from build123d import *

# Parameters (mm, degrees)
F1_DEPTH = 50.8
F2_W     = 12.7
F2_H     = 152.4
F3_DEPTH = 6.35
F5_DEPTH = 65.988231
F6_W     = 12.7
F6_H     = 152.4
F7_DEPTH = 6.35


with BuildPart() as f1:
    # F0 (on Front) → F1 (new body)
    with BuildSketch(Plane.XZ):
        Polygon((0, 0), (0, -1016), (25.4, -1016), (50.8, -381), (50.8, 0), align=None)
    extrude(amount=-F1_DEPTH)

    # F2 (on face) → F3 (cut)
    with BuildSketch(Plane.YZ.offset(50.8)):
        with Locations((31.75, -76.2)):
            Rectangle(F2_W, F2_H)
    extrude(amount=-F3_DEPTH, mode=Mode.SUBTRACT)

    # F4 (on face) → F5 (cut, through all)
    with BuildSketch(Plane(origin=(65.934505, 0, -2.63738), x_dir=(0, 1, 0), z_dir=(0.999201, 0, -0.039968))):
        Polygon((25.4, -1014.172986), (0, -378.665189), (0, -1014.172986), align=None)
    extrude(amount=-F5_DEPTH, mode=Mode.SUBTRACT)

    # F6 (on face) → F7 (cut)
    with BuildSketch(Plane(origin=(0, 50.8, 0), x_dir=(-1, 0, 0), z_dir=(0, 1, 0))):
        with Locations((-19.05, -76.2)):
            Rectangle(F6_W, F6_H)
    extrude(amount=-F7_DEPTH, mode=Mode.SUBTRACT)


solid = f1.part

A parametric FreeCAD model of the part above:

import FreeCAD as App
import Part
import Sketcher
Q = App.Units.Quantity

doc = App.newDocument("Part")
body = doc.addObject("PartDesign::Body", "Body")

# Sketch on XZ plane
sketch1 = doc.addObject("Sketcher::SketchObject", "Sketch")
body.addObject(sketch1)
sketch1.AttachmentSupport = (doc.XZ_Plane, [""])
sketch1.MapMode = "FlatFace"
sketch1.addGeometry([
    Part.LineSegment(App.Vector(0, 0, 0), App.Vector(0, -1016, 0)),  # 0
    Part.LineSegment(App.Vector(0, -1016, 0), App.Vector(25, -1016, 0)),  # 1
    Part.LineSegment(App.Vector(25, -1016, 0), App.Vector(51, -381, 0)),  # 2
    Part.LineSegment(App.Vector(51, -381, 0), App.Vector(51, 0, 0)),  # 3
    Part.LineSegment(App.Vector(51, 0, 0), App.Vector(0, 0, 0)),  # 4
], False)
sketch1.addConstraint([
    Sketcher.Constraint("Coincident", 0, 2, 1, 1),
    Sketcher.Constraint("Coincident", 1, 2, 2, 1),
    Sketcher.Constraint("Coincident", 2, 2, 3, 1),
    Sketcher.Constraint("Coincident", 3, 2, 4, 1),
    Sketcher.Constraint("Coincident", 4, 2, 0, 1),
    Sketcher.Constraint("Vertical", 0),
    Sketcher.Constraint("Horizontal", 1),
    Sketcher.Constraint("Vertical", 3),
    Sketcher.Constraint("Horizontal", 4),
    Sketcher.Constraint("Coincident", 4, 2, -1, 1),
    Sketcher.Constraint("DistanceX", 1, 1, 1, 2, Q("1 in")),
    Sketcher.Constraint("DistanceX", 4, 2, 4, 1, Q("2 in")),
    Sketcher.Constraint("DistanceY", 0, 2, 0, 1, Q("40 in")),
    Sketcher.Constraint("DistanceY", 3, 1, 3, 2, Q("15 in")),
])
pad1 = doc.addObject("PartDesign::Pad", "Pad")
body.addObject(pad1)
pad1.Profile = sketch1
pad1.Length = Q("2 in")
pad1.Reversed = True

# Sketch on YZ plane
sketch2 = doc.addObject("Sketcher::SketchObject", "Sketch001")
body.addObject(sketch2)
sketch2.AttachmentSupport = (doc.YZ_Plane, [""])
sketch2.MapMode = "FlatFace"
sketch2.AttachmentOffset = App.Placement(App.Vector(0, 0, 2 * 25.4), App.Rotation())
sketch2.addGeometry([
    Part.LineSegment(App.Vector(25, 0, 0), App.Vector(25, -152, 0)),
    Part.LineSegment(App.Vector(25, -152, 0), App.Vector(38, -152, 0)),
    Part.LineSegment(App.Vector(38, -152, 0), App.Vector(38, 0, 0)),
    Part.LineSegment(App.Vector(38, 0, 0), App.Vector(25, 0, 0)),
], False)
sketch2.addConstraint([
    Sketcher.Constraint("Coincident", 0, 2, 1, 1),
    Sketcher.Constraint("Coincident", 1, 2, 2, 1),
    Sketcher.Constraint("Coincident", 2, 2, 3, 1),
    Sketcher.Constraint("Coincident", 3, 2, 0, 1),
    Sketcher.Constraint("Vertical", 0),
    Sketcher.Constraint("Horizontal", 1),
    Sketcher.Constraint("Vertical", 2),
    Sketcher.Constraint("Horizontal", 3),
    Sketcher.Constraint("PointOnObject", 2, 2, -1),
    Sketcher.Constraint("DistanceY", 0, 2, 0, 1, Q("6 in")),
    Sketcher.Constraint("DistanceX", 1, 1, 1, 2, Q("0.5 in")),
    Sketcher.Constraint("DistanceX", -1, 1, 0, 2, Q("1 in")),
])
pocket1 = doc.addObject("PartDesign::Pocket", "Pocket")
body.addObject(pocket1)
pocket1.Profile = sketch2
pocket1.Length = Q("0.25 in")

# Sketch on an angled plane
sketch3 = doc.addObject("Sketcher::SketchObject", "Sketch002")
body.addObject(sketch3)
sketch3.Placement = App.Placement(App.Vector(65.934505, 0, -2.63738), App.Rotation(App.Vector(0, 1, 0), App.Vector(0.039967998, 0, 0.99920096), App.Vector(0.99920096, 0, -0.039967998), "ZXY"))
sketch3.addGeometry([
    Part.LineSegment(App.Vector(25, -1014, 0), App.Vector(0, -379, 0)),
    Part.LineSegment(App.Vector(0, -379, 0), App.Vector(0, -1014, 0)),
    Part.LineSegment(App.Vector(0, -1014, 0), App.Vector(25, -1014, 0)),
], False)
sketch3.addConstraint([
    Sketcher.Constraint("Coincident", 0, 2, 1, 1),
    Sketcher.Constraint("Coincident", 1, 2, 2, 1),
    Sketcher.Constraint("Coincident", 2, 2, 0, 1),
    Sketcher.Constraint("Vertical", 1),
    Sketcher.Constraint("Horizontal", 2),
    Sketcher.Constraint("PointOnObject", 0, 2, -2),
    Sketcher.Constraint("DistanceX", 2, 1, 2, 2, Q("1 in")),
    Sketcher.Constraint("Distance", 0, Q("636.015188 mm")),
    Sketcher.Constraint("DistanceY", 0, 2, -1, 1, Q("378.665189 mm")),
])
pocket2 = doc.addObject("PartDesign::Pocket", "Pocket001")
body.addObject(pocket2)
pocket2.Profile = sketch3
pocket2.Type = "ThroughAll"

# Sketch on XZ plane
sketch4 = doc.addObject("Sketcher::SketchObject", "Sketch003")
body.addObject(sketch4)
sketch4.AttachmentSupport = (doc.XZ_Plane, [""])
sketch4.MapMode = "FlatFace"
sketch4.AttachmentOffset = App.Placement(App.Vector(0, 0, -2 * 25.4), App.Rotation())
sketch4.addGeometry([
    Part.LineSegment(App.Vector(25, 0, 0), App.Vector(25, -152, 0)),
    Part.LineSegment(App.Vector(25, -152, 0), App.Vector(13, -152, 0)),
    Part.LineSegment(App.Vector(13, -152, 0), App.Vector(13, 0, 0)),
    Part.LineSegment(App.Vector(13, 0, 0), App.Vector(25, 0, 0)),
], False)
sketch4.addConstraint([
    Sketcher.Constraint("Coincident", 0, 2, 1, 1),
    Sketcher.Constraint("Coincident", 1, 2, 2, 1),
    Sketcher.Constraint("Coincident", 2, 2, 3, 1),
    Sketcher.Constraint("Coincident", 3, 2, 0, 1),
    Sketcher.Constraint("Vertical", 0),
    Sketcher.Constraint("Horizontal", 1),
    Sketcher.Constraint("Vertical", 2),
    Sketcher.Constraint("Horizontal", 3),
    Sketcher.Constraint("PointOnObject", 2, 2, -1),
    Sketcher.Constraint("DistanceY", 0, 2, 0, 1, Q("6 in")),
    Sketcher.Constraint("DistanceX", 1, 2, 1, 1, Q("0.5 in")),
    Sketcher.Constraint("DistanceX", -1, 1, 0, 2, Q("1 in")),
])
pocket3 = doc.addObject("PartDesign::Pocket", "Pocket002")
body.addObject(pocket3)
pocket3.Profile = sketch4
pocket3.Length = Q("0.25 in")
pocket3.Reversed = True

doc.recompute()
